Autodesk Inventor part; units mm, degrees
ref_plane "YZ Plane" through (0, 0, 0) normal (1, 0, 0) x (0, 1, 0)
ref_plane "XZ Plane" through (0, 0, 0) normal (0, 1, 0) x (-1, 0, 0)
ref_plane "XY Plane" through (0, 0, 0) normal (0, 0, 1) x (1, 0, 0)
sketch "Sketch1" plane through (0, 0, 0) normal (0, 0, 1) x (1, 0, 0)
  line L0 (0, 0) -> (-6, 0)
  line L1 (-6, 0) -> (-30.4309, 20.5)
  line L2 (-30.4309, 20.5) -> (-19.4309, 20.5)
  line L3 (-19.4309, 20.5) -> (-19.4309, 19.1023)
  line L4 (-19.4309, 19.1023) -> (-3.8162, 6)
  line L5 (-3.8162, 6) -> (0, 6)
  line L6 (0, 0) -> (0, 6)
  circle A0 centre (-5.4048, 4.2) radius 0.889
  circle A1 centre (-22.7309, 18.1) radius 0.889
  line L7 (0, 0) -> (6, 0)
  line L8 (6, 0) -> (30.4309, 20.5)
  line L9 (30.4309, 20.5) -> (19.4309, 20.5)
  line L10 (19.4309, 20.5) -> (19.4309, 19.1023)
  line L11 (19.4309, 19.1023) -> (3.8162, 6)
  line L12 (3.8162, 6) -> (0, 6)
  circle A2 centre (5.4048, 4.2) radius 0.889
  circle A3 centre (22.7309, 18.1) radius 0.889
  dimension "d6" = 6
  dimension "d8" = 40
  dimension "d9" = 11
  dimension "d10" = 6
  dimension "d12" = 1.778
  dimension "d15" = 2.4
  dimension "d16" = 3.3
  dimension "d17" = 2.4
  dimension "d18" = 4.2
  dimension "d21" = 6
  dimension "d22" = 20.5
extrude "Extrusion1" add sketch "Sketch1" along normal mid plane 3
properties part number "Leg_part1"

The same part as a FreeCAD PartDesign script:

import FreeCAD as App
import Part
import Sketcher
from FreeCAD import Vector
Q = App.Units.Quantity


def add_polygon(sketch, points):
    """Adds a closed chain of lines whose ends are joined by coincident constraints."""
    first, n = sketch.GeometryCount, len(points)
    for a, b in zip(points, points[1:] + points[:1]):
        sketch.addGeometry(Part.LineSegment(App.Vector(*a, 0), App.Vector(*b, 0)), False)
    for i in range(n):
        sketch.addConstraint(Sketcher.Constraint("Coincident", first + i, 2, first + (i + 1) % n, 1))

doc = App.newDocument("Part")
body = doc.addObject("PartDesign::Body", "Body")

sketch1 = doc.addObject("Sketcher::SketchObject", "Sketch")
body.addObject(sketch1)
sketch1.AttachmentSupport = (doc.XY_Plane, [""])
sketch1.MapMode = "FlatFace"
add_polygon(sketch1, [(-6, 0), (6, 0), (30.4, 20.5), (19.4, 20.5), (19.4, 19.1), (3.8, 6), (-3.8, 6), (-19.4, 19.1), (-19.4, 20.5), (-30.4, 20.5)])
sketch1.addGeometry(Part.Circle(Vector(-5.4, 4.2, 0), Vector(0, 0, 1), 0.9), False)
sketch1.addGeometry(Part.Circle(Vector(-22.7, 18.1, 0), Vector(0, 0, 1), 0.9), False)
sketch1.addGeometry(Part.Circle(Vector(22.7, 18.1, 0), Vector(0, 0, 1), 0.9), False)
sketch1.addGeometry(Part.Circle(Vector(5.4, 4.2, 0), Vector(0, 0, 1), 0.9), False)
sketch1.addConstraint(Sketcher.Constraint("Horizontal", 0))
sketch1.addConstraint(Sketcher.Constraint("Horizontal", 2))
sketch1.addConstraint(Sketcher.Constraint("Vertical", 3))
sketch1.addConstraint(Sketcher.Constraint("Horizontal", 5))
sketch1.addConstraint(Sketcher.Constraint("Vertical", 7))
sketch1.addConstraint(Sketcher.Constraint("Horizontal", 8))
sketch1.addConstraint(Sketcher.Constraint("Equal", 10, 11))
sketch1.addConstraint(Sketcher.Constraint("Equal", 11, 12))
sketch1.addConstraint(Sketcher.Constraint("Equal", 12, 13))
sketch1.addConstraint(Sketcher.Constraint("Symmetric", 0, 2, 9, 2, -1, 1))
sketch1.addConstraint(Sketcher.Constraint("Symmetric", 11, 3, 12, 3, -2))
sketch1.addConstraint(Sketcher.Constraint("Symmetric", 10, 3, 13, 3, -2))
sketch1.addConstraint(Sketcher.Constraint("Symmetric", 3, 2, 6, 2, -2))
sketch1.addConstraint(Sketcher.Constraint("Symmetric", 1, 2, 8, 2, -2))
sketch1.addConstraint(Sketcher.Constraint("Parallel", 1, 4))
sketch1.addConstraint(Sketcher.Constraint("Parallel", 6, 9))
sketch1.addConstraint(Sketcher.Constraint("DistanceX", 2, 2, 2, 1, Q("11 mm")))
sketch1.addConstraint(Sketcher.Constraint("Angle", 1, Q("40 deg")))
sketch1.addConstraint(Sketcher.Constraint("Diameter", 10, Q("1.778 mm")))
sketch1.addConstraint(Sketcher.Constraint("DistanceX", -1, 1, 0, 2, Q("6 mm")))
sketch1.addConstraint(Sketcher.Constraint("DistanceY", -1, 1, 4, 2, Q("6 mm")))
sketch1.addConstraint(Sketcher.Constraint("DistanceY", -1, 1, 10, 3, Q("4.2 mm")))
sketch1.addConstraint(Sketcher.Constraint("DistanceY", -1, 1, 1, 2, Q("20.5 mm")))
sketch1.addConstraint(Sketcher.Constraint("DistanceY", 12, 3, 1, 2, Q("2.4 mm")))
sketch1.addConstraint(Sketcher.Constraint("DistanceX", 2, 2, 12, 3, Q("3.3 mm")))
sketch1.addConstraint(Sketcher.Constraint("DistanceX", 5, 2, 5, 1, Q("7.6324 mm")))
sketch1.addConstraint(Sketcher.Constraint("DistanceX", 11, 3, 10, 3, Q("17.326 mm")))
pad1 = doc.addObject("PartDesign::Pad", "Pad")
body.addObject(pad1)
pad1.Profile = sketch1
pad1.Length = 3
pad1.Midplane = True

doc.recompute()
